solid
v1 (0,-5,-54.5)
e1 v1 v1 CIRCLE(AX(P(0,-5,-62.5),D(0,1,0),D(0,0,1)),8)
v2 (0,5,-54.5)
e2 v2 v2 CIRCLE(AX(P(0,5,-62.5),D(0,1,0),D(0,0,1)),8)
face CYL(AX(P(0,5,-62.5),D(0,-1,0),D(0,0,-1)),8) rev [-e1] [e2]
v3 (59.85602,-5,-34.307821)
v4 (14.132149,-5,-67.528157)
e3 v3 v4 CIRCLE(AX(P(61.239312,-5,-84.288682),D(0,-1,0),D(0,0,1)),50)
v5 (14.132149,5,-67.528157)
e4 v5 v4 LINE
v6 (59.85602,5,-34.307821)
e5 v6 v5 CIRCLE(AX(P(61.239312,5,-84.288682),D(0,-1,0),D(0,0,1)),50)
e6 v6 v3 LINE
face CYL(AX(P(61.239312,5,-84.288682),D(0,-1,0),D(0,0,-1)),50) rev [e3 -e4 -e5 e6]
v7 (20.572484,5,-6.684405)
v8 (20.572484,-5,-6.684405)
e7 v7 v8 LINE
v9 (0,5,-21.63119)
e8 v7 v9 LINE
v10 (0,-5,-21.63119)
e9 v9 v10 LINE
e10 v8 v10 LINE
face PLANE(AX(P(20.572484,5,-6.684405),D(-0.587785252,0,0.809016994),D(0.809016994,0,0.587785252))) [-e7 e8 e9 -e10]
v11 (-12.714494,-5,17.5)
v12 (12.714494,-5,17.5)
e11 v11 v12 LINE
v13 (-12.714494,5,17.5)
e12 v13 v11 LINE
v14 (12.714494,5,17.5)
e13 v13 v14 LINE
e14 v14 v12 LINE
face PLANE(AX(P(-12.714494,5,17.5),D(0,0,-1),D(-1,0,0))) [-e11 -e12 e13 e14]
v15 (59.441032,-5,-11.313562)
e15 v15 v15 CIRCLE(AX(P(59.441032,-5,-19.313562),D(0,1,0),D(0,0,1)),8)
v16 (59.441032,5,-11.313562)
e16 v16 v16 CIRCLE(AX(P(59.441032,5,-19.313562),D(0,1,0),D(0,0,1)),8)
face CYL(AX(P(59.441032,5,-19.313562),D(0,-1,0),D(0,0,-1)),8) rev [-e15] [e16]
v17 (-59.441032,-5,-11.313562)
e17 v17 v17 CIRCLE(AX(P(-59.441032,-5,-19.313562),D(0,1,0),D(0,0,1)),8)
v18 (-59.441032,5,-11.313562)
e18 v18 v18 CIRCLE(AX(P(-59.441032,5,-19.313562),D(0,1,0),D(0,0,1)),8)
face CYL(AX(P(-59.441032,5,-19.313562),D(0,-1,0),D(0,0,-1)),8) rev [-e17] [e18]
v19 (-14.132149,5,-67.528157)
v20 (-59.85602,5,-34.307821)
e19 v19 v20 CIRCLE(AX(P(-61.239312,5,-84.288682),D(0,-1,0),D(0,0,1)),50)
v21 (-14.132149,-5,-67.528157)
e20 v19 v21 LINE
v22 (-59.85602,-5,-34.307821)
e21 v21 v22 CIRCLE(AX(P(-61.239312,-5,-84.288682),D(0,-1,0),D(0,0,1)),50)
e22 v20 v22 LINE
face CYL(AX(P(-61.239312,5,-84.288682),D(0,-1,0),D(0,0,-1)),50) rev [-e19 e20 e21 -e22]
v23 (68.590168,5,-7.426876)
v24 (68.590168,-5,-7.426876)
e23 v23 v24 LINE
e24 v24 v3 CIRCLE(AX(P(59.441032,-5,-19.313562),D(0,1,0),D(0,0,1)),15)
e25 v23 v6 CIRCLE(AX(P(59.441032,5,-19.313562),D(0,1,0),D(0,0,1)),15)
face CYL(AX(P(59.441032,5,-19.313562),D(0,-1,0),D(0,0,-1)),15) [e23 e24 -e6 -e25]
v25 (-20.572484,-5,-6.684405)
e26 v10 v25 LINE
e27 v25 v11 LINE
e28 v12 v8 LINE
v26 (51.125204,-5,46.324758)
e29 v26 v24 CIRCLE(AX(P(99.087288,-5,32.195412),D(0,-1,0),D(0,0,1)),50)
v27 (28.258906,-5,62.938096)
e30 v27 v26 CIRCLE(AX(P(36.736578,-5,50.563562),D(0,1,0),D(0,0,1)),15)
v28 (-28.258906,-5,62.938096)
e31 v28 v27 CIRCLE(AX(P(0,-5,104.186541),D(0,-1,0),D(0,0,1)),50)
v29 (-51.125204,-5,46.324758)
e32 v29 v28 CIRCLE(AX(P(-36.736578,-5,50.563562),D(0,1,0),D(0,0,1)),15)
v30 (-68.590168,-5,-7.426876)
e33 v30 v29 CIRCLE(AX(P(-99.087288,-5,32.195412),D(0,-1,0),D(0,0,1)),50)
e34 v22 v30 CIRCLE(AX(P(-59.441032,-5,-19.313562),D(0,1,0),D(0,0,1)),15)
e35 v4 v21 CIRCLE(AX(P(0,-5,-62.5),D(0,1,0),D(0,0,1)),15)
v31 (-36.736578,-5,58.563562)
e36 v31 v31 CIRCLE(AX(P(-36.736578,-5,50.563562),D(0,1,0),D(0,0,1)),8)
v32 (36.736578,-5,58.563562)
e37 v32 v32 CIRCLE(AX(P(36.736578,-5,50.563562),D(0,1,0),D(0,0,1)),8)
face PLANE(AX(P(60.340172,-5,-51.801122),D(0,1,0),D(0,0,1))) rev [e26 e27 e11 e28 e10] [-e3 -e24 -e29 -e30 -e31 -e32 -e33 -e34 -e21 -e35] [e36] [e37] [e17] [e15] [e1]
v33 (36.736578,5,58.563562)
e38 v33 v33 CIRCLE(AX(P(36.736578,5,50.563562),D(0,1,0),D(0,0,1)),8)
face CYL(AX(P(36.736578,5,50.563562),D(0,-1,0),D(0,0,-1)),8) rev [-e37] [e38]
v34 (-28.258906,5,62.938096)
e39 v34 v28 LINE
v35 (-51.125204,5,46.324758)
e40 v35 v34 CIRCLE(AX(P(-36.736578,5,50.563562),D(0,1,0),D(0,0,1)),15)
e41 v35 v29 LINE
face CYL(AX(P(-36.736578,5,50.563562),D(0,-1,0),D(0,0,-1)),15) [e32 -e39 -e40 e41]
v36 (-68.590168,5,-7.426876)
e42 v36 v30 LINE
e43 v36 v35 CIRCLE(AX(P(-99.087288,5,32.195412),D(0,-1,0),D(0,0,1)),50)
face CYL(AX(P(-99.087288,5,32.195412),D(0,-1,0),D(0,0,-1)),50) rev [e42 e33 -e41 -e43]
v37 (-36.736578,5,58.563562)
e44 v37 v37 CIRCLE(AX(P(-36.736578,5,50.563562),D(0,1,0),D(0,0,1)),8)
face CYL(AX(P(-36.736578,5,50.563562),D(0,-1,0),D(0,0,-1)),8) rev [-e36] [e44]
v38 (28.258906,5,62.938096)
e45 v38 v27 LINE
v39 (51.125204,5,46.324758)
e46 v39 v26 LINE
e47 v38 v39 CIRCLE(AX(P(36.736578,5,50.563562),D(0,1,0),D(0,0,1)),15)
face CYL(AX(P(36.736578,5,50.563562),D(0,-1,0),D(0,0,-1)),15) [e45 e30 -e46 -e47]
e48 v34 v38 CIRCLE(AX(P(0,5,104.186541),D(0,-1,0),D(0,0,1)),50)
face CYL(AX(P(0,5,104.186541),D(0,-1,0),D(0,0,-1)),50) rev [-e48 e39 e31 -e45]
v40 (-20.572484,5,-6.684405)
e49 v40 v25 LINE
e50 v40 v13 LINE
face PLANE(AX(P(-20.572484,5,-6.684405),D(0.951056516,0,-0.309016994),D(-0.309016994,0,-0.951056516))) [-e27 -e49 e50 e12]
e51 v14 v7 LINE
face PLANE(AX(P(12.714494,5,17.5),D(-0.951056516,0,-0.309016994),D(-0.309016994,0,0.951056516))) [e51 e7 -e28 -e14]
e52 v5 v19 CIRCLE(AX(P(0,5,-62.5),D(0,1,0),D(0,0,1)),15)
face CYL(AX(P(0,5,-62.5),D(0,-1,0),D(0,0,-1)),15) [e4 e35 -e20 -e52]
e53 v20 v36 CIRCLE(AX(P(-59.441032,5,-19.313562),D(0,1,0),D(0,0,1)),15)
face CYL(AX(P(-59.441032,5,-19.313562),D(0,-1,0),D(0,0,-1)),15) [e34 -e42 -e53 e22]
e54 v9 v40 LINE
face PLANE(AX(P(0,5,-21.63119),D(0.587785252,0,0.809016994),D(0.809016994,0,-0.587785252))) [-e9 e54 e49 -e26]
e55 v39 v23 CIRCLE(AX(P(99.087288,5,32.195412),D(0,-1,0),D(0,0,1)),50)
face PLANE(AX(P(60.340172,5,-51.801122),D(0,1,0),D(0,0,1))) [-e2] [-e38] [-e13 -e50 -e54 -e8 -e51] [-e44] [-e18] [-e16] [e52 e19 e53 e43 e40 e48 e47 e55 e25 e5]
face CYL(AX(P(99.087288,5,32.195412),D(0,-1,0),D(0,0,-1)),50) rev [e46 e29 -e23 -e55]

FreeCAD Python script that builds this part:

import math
import FreeCAD as App
import Part
import Sketcher

V = App.Vector
Q = App.Units.Quantity


def add_polygon(sketch, points):
    """Adds a closed chain of lines whose ends are joined by coincident constraints."""
    first, n = sketch.GeometryCount, len(points)
    for a, b in zip(points, points[1:] + points[:1]):
        sketch.addGeometry(Part.LineSegment(App.Vector(*a, 0), App.Vector(*b, 0)), False)
    for i in range(n):
        sketch.addConstraint(Sketcher.Constraint("Coincident", first + i, 2, first + (i + 1) % n, 1))

doc = App.newDocument("Part")
params = doc.addObject("Spreadsheet::Sheet", "Params")
for row, (alias, value) in enumerate([
    ("sketch1_diameter", "16 mm"),
    ("sketch1_radius", "15 mm"),
    ("sketch1_radius2", "50 mm"),
    ("pad1_length", "10 mm"),
], start=1):
    params.set(f"A{row}", alias)
    params.set(f"B{row}", "=" + value)
    params.setAlias(f"B{row}", alias)

body = doc.addObject("PartDesign::Body", "Body")

# Sketch on XZ plane
sketch1 = body.newObject("Sketcher::SketchObject", "Sketch")
sketch1.AttachmentSupport = (doc.getObject("XZ_Plane"), [""])
sketch1.MapMode = "FlatFace"
sketch1.addGeometry(Part.ArcOfCircle(Part.Circle(V(0, -62, 0), V(0, 0, 1), 15), math.radians(-160), math.radians(-20)), False)  # 0
sketch1.addGeometry(Part.ArcOfCircle(Part.Circle(V(-61, -84, 0), V(0, 0, 1), 50), math.radians(20), math.radians(88)), False)  # 1
sketch1.addGeometry(Part.ArcOfCircle(Part.Circle(V(-59, -19, 0), V(0, 0, 1), 15), math.radians(128), math.radians(268)), False)  # 2
sketch1.addGeometry(Part.ArcOfCircle(Part.Circle(V(-99, 32, 0), V(0, 0, 1), 50), math.radians(-52), math.radians(16)), False)  # 3
sketch1.addGeometry(Part.ArcOfCircle(Part.Circle(V(-37, 51, 0), V(0, 0, 1), 15), math.radians(56), math.radians(196)), False)  # 4
sketch1.addGeometry(Part.ArcOfCircle(Part.Circle(V(0, 104, 0), V(0, 0, 1), 50), math.radians(-124), math.radians(-56)), False)  # 5
sketch1.addGeometry(Part.ArcOfCircle(Part.Circle(V(37, 51, 0), V(0, 0, 1), 15), math.radians(-16), math.radians(124)), False)  # 6
sketch1.addGeometry(Part.ArcOfCircle(Part.Circle(V(99, 32, 0), V(0, 0, 1), 50), math.radians(164), math.radians(232)), False)  # 7
sketch1.addGeometry(Part.ArcOfCircle(Part.Circle(V(59, -19, 0), V(0, 0, 1), 15), math.radians(-88), math.radians(52)), False)  # 8
sketch1.addGeometry(Part.ArcOfCircle(Part.Circle(V(61, -84, 0), V(0, 0, 1), 50), math.radians(92), math.radians(160)), False)  # 9
sketch1.addGeometry(Part.Circle(V(-37, 51, 0), V(0, 0, 1), 8), False)  # 10
sketch1.addGeometry(Part.Circle(V(37, 51, 0), V(0, 0, 1), 8), False)  # 11
add_polygon(sketch1, [(-21, -7), (0, -22), (21, -7), (13, 18), (-13, 18)])  # lines 12-16
sketch1.addGeometry(Part.Circle(V(-59, -19, 0), V(0, 0, 1), 8), False)  # 17
sketch1.addGeometry(Part.Circle(V(59, -19, 0), V(0, 0, 1), 8), False)  # 18
sketch1.addGeometry(Part.Circle(V(0, -62, 0), V(0, 0, 1), 8), False)  # 19
sketch1.addConstraint([
    Sketcher.Constraint("Tangent", 0, 1, 1, 1),
    Sketcher.Constraint("Tangent", 1, 2, 2, 2),
    Sketcher.Constraint("Tangent", 2, 1, 3, 1),
    Sketcher.Constraint("Tangent", 3, 2, 4, 2),
    Sketcher.Constraint("Tangent", 4, 1, 5, 1),
    Sketcher.Constraint("Tangent", 5, 2, 6, 2),
    Sketcher.Constraint("Tangent", 6, 1, 7, 1),
    Sketcher.Constraint("Tangent", 7, 2, 8, 2),
    Sketcher.Constraint("Tangent", 8, 1, 9, 1),
    Sketcher.Constraint("Tangent", 9, 2, 0, 2),
    Sketcher.Constraint("Horizontal", 15),
    Sketcher.Constraint("Coincident", 10, 3, 4, 3),
    Sketcher.Constraint("Coincident", 11, 3, 6, 3),
    Sketcher.Constraint("Coincident", 17, 3, 2, 3),
    Sketcher.Constraint("Coincident", 18, 3, 8, 3),
    Sketcher.Constraint("Coincident", 19, 3, 0, 3),
    Sketcher.Constraint("Equal", 0, 2),
    Sketcher.Constraint("Equal", 1, 3),
    Sketcher.Constraint("Equal", 2, 4),
    Sketcher.Constraint("Equal", 3, 5),
    Sketcher.Constraint("Equal", 4, 6),
    Sketcher.Constraint("Equal", 5, 7),
    Sketcher.Constraint("Equal", 6, 8),
    Sketcher.Constraint("Equal", 7, 9),
    Sketcher.Constraint("Equal", 10, 11),
    Sketcher.Constraint("Equal", 11, 17),
    Sketcher.Constraint("Equal", 17, 18),
    Sketcher.Constraint("Equal", 18, 19),
    Sketcher.Constraint("Symmetric", 4, 3, 6, 3, -2),
    Sketcher.Constraint("Symmetric", 2, 3, 8, 3, -2),
    Sketcher.Constraint("Symmetric", 13, 2, 16, 2, -2),
    Sketcher.Constraint("PointOnObject", 0, 3, -2),
    Sketcher.Constraint("PointOnObject", 12, 2, -2),
    Sketcher.Constraint("Equal", 13, 14),
    Sketcher.Constraint("Equal", 14, 16),
    Sketcher.Constraint("Diameter", 10, Q("16 mm")),
    Sketcher.Constraint("Radius", 0, Q("15 mm")),
    Sketcher.Constraint("Radius", 1, Q("50 mm")),
    Sketcher.Constraint("Angle", 12, Q("-36 deg")),
    Sketcher.Constraint("Angle", 14, Q("108 deg")),
    Sketcher.Constraint("DistanceY", 0, 3, -1, 1, Q("62.5 mm")),
    Sketcher.Constraint("DistanceY", -1, 1, 14, 2, Q("17.5 mm")),
    Sketcher.Constraint("DistanceX", 15, 2, 15, 1, Q("25.428988 mm")),
    Sketcher.Constraint("DistanceY", 1, 3, -1, 1, Q("84.288682 mm")),
    Sketcher.Constraint("DistanceX", 3, 3, -1, 1, Q("99.087288 mm")),
    Sketcher.Constraint("DistanceY", -1, 1, 3, 3, Q("32.195412 mm")),
    Sketcher.Constraint("DistanceX", 4, 3, -1, 1, Q("36.736578 mm")),
])
sketch1.setExpression("Constraints[40]", "Params.sketch1_diameter")
sketch1.setExpression("Constraints[41]", "Params.sketch1_radius")
sketch1.setExpression("Constraints[42]", "Params.sketch1_radius2")
pad1 = body.newObject("PartDesign::Pad", "Pad")
pad1.Profile = sketch1
pad1.setExpression("Length", "Params.pad1_length")
pad1.Midplane = True

doc.recompute()
